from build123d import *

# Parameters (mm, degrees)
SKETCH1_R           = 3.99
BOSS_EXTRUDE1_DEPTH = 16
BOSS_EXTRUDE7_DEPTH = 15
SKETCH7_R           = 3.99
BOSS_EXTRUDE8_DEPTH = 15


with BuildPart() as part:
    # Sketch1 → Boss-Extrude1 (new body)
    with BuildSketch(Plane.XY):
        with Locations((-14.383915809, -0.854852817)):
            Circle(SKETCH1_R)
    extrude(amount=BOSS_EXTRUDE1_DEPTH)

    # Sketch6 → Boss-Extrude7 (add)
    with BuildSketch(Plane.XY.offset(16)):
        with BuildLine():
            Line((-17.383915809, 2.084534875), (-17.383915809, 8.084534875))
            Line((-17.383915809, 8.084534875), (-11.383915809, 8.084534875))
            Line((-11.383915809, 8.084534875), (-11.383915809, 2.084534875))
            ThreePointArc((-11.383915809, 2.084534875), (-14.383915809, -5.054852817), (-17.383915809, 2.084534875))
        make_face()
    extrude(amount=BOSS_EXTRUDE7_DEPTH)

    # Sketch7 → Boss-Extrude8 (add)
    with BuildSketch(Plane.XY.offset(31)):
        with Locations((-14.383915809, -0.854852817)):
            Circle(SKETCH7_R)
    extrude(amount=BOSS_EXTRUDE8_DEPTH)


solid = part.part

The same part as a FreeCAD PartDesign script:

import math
import FreeCAD as App
import Part
import Sketcher
from FreeCAD import Vector

doc = App.newDocument("Part")
params = doc.addObject("Spreadsheet::Sheet", "Params")
for row, (alias, value) in enumerate([
    ("sketch1_diameter", "7.98 mm"),
    ("pad1_length", "16 mm"),
    ("sketch2_radius", "4.2 mm"),
    ("sketch2_width", "6 mm"),
    ("pad2_length", "15 mm"),
    ("sketch3_diameter", "7.98 mm"),
    ("pad3_length", "15 mm"),
], start=1):
    params.set(f"A{row}", alias)
    params.set(f"B{row}", "=" + value)
    params.setAlias(f"B{row}", alias)

body = doc.addObject("PartDesign::Body", "Body")

sketch1 = doc.addObject("Sketcher::SketchObject", "Sketch")
body.addObject(sketch1)
sketch1.AttachmentSupport = (doc.XY_Plane, [""])
sketch1.MapMode = "FlatFace"
sketch1.addGeometry(Part.Circle(Vector(-14.4, -0.9, 0), Vector(0, 0, 1), 4), False)
sketch1.addConstraint([
    Sketcher.Constraint("Diameter", 0, 7.98),
    Sketcher.Constraint("DistanceX", 0, 3, -1, 1, 14.383916),
    Sketcher.Constraint("DistanceY", 0, 3, -1, 1, 0.854853),
])
sketch1.setExpression("Constraints[0]", "Params.sketch1_diameter")
pad1 = doc.addObject("PartDesign::Pad", "Pad")
body.addObject(pad1)
pad1.Profile = sketch1
pad1.setExpression("Length", "Params.pad1_length")

sketch2 = doc.addObject("Sketcher::SketchObject", "Sketch001")
body.addObject(sketch2)
sketch2.AttachmentSupport = (doc.XY_Plane, [""])
sketch2.MapMode = "FlatFace"
sketch2.AttachmentOffset = App.Placement(Vector(0, 0, 16), App.Rotation())
sketch2.addGeometry([
    Part.LineSegment(Vector(-17.4, 8.1, 0), Vector(-17.4, 2.1, 0)),
    Part.ArcOfCircle(Part.Circle(Vector(-14.4, -0.9, 0), Vector(0, 0, 1), 4.2), math.radians(136), math.radians(404)),
    Part.LineSegment(Vector(-11.4, 2.1, 0), Vector(-11.4, 8.1, 0)),
    Part.LineSegment(Vector(-11.4, 8.1, 0), Vector(-17.4, 8.1, 0)),
], False)
sketch2.addConstraint([
    Sketcher.Constraint("Coincident", 0, 2, 1, 1),
    Sketcher.Constraint("Coincident", 1, 2, 2, 1),
    Sketcher.Constraint("Coincident", 2, 2, 3, 1),
    Sketcher.Constraint("Coincident", 3, 2, 0, 1),
    Sketcher.Constraint("Vertical", 0),
    Sketcher.Constraint("Vertical", 2),
    Sketcher.Constraint("Horizontal", 3),
    Sketcher.Constraint("Horizontal", 0, 2, 1, 2),
    Sketcher.Constraint("Equal", 3, 0),
    Sketcher.Constraint("Radius", 1, 4.2),
    Sketcher.Constraint("DistanceX", 3, 2, 3, 1, 6.0),
    Sketcher.Constraint("DistanceX", 1, 3, -1, 1, 14.383916),
    Sketcher.Constraint("DistanceY", 1, 3, -1, 1, 0.854853),
])
sketch2.setExpression("Constraints[9]", "Params.sketch2_radius")
sketch2.setExpression("Constraints[10]", "Params.sketch2_width")
pad2 = doc.addObject("PartDesign::Pad", "Pad001")
body.addObject(pad2)
pad2.Profile = sketch2
pad2.setExpression("Length", "Params.pad2_length")

sketch3 = doc.addObject("Sketcher::SketchObject", "Sketch002")
body.addObject(sketch3)
sketch3.AttachmentSupport = (doc.XY_Plane, [""])
sketch3.MapMode = "FlatFace"
sketch3.AttachmentOffset = App.Placement(Vector(0, 0, 31), App.Rotation())
sketch3.addGeometry(Part.Circle(Vector(-14.4, -0.9, 0), Vector(0, 0, 1), 4), False)
sketch3.addConstraint([
    Sketcher.Constraint("Diameter", 0, 7.98),
    Sketcher.Constraint("DistanceX", 0, 3, -1, 1, 14.383916),
    Sketcher.Constraint("DistanceY", 0, 3, -1, 1, 0.854853),
])
sketch3.setExpression("Constraints[0]", "Params.sketch3_diameter")
pad3 = doc.addObject("PartDesign::Pad", "Pad002")
body.addObject(pad3)
pad3.Profile = sketch3
pad3.setExpression("Length", "Params.pad3_length")

doc.recompute()
